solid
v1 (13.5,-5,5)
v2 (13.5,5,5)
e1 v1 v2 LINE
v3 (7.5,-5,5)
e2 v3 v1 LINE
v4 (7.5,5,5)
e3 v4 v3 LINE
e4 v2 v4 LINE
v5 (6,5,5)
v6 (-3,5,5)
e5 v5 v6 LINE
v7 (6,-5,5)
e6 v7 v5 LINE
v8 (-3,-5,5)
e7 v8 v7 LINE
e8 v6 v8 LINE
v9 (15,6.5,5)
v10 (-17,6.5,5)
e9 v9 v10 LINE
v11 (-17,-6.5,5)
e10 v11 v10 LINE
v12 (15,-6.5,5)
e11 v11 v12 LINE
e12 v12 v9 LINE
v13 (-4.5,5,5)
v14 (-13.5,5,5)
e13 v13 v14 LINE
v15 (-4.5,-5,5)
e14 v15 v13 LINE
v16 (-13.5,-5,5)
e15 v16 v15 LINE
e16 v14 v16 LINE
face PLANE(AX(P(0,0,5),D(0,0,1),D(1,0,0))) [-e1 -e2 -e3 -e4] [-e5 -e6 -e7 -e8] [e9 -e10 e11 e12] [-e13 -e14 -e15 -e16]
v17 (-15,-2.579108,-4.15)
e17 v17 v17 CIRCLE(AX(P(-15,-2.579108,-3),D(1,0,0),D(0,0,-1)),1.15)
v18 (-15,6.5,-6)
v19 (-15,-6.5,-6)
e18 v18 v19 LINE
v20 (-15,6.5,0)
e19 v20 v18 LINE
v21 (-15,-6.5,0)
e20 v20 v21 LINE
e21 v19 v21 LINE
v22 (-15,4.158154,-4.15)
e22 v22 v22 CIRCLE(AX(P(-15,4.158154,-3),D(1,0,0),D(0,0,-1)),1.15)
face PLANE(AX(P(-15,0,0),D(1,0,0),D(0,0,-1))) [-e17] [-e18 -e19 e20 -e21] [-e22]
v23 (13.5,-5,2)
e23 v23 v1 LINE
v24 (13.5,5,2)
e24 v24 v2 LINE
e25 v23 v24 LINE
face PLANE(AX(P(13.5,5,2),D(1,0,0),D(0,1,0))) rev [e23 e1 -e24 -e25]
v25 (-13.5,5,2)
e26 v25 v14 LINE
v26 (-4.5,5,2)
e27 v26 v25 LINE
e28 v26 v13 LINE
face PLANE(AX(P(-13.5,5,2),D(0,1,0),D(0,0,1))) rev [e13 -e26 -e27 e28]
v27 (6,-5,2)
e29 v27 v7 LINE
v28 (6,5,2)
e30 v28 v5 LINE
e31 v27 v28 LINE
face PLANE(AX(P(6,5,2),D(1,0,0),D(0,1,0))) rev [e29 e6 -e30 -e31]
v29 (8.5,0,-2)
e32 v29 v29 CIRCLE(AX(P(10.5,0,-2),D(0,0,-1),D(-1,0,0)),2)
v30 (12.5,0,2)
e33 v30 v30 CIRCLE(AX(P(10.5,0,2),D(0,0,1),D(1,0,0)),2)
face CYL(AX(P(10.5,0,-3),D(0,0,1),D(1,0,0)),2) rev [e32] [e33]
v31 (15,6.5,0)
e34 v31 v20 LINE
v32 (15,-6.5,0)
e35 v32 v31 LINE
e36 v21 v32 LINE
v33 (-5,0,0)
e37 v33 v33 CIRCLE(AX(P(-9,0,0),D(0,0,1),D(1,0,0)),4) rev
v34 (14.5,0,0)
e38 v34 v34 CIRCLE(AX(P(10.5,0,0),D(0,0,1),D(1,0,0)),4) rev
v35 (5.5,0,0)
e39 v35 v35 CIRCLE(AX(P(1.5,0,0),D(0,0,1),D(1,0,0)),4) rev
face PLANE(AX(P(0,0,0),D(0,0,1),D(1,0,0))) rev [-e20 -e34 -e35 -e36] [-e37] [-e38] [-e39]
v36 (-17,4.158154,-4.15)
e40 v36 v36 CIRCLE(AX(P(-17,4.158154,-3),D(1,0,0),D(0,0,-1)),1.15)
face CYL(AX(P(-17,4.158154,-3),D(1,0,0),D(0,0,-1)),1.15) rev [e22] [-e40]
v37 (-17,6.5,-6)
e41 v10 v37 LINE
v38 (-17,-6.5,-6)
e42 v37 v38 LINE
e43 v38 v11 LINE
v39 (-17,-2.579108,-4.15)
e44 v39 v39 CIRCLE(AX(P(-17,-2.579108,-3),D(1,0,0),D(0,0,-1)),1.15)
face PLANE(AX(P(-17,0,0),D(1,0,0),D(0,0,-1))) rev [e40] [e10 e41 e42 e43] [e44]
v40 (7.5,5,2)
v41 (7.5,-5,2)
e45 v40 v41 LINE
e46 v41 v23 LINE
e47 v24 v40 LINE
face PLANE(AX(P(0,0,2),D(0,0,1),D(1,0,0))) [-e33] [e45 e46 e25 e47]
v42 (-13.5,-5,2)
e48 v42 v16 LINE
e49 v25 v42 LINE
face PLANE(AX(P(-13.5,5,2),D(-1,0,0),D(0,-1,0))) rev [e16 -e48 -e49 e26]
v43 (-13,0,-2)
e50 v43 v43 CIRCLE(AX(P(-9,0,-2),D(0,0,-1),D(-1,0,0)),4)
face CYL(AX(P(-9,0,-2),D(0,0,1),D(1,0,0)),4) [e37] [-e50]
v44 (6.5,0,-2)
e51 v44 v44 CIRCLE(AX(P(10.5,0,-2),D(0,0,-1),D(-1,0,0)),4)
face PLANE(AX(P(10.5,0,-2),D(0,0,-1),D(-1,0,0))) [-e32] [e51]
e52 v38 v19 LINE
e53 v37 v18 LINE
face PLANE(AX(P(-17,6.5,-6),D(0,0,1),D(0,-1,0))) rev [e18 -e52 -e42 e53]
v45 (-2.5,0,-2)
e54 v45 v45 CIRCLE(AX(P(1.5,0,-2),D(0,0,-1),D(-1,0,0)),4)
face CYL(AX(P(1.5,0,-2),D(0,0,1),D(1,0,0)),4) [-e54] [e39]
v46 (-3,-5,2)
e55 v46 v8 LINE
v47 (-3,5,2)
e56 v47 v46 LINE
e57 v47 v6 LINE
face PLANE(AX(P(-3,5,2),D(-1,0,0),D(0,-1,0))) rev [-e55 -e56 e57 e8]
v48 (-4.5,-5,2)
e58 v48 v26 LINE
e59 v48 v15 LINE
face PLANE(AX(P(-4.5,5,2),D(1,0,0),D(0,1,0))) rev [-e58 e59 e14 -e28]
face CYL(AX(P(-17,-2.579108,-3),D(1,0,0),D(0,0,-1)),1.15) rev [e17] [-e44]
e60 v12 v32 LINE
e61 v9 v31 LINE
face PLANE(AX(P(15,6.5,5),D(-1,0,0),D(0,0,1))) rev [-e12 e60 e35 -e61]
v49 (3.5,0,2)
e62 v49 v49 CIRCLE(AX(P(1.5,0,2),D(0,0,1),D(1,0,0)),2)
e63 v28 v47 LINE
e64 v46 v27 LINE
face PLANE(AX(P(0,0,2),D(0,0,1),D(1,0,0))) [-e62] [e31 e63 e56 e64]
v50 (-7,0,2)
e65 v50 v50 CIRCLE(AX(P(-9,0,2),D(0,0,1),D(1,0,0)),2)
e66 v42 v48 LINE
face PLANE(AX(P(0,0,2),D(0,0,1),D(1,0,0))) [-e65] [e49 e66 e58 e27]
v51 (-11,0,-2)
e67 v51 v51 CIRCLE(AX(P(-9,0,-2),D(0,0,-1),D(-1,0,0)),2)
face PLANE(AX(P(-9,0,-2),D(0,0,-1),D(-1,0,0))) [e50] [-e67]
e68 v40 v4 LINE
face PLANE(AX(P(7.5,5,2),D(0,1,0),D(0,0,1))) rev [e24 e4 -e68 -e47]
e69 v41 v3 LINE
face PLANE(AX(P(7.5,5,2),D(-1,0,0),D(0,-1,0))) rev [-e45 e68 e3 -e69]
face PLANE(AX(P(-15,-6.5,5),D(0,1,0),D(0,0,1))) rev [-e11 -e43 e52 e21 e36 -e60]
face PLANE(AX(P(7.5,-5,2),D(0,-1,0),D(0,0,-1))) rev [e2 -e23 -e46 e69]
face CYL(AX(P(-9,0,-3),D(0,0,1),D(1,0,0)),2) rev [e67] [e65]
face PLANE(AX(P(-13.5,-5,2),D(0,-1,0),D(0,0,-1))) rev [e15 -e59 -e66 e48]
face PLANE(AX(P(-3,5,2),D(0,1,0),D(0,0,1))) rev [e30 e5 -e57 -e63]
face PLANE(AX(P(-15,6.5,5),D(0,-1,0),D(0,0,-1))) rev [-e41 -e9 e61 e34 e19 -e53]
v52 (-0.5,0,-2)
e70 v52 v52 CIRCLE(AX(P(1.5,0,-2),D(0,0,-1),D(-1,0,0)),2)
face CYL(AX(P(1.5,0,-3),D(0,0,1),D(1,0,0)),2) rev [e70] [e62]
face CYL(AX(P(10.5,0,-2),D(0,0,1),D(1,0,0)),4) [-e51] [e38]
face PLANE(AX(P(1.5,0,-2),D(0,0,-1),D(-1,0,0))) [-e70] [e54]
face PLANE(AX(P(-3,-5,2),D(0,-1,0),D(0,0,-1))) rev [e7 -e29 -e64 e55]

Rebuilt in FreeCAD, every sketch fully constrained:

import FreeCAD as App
import Part
import Sketcher
from FreeCAD import Vector
Q = App.Units.Quantity


def add_polygon(sketch, points):
    """Adds a closed chain of lines whose ends are joined by coincident constraints."""
    first, n = sketch.GeometryCount, len(points)
    for a, b in zip(points, points[1:] + points[:1]):
        sketch.addGeometry(Part.LineSegment(App.Vector(*a, 0), App.Vector(*b, 0)), False)
    for i in range(n):
        sketch.addConstraint(Sketcher.Constraint("Coincident", first + i, 2, first + (i + 1) % n, 1))

doc = App.newDocument("Part")
params = doc.addObject("Spreadsheet::Sheet", "Params")
for row, (alias, value) in enumerate([
    ("sketch1_width", "30 mm"),
    ("sketch1_height", "13 mm"),
    ("pad1_length", "5 mm"),
    ("sketch2_width", "9 mm"),
    ("sketch2_width2", "6 mm"),
    ("sketch2_height", "10 mm"),
    ("pocket1_length", "3 mm"),
    ("sketch3_diameter", "4 mm"),
    ("pocket2_length", "5 mm"),
    ("sketch4_width", "13 mm"),
    ("sketch4_height", "11 mm"),
    ("pad2_length", "2 mm"),
    ("sketch5_diameter", "2.3 mm"),
    ("pocket3_length", "2 mm"),
    ("sketch6_diameter", "8 mm"),
    ("sketch6_diameter2", "4 mm"),
    ("pad3_length", "2 mm"),
], start=1):
    params.set(f"A{row}", alias)
    params.set(f"B{row}", "=" + value)
    params.setAlias(f"B{row}", alias)

body = doc.addObject("PartDesign::Body", "Body")

# Sketch on XY plane
sketch1 = doc.addObject("Sketcher::SketchObject", "Sketch")
body.addObject(sketch1)
sketch1.AttachmentSupport = (doc.XY_Plane, [""])
sketch1.MapMode = "FlatFace"
add_polygon(sketch1, [(-15, 6), (-15, -6), (15, -6), (15, 6)])  # lines 0-3
sketch1.addConstraint([
    Sketcher.Constraint("Vertical", 0),
    Sketcher.Constraint("Horizontal", 1),
    Sketcher.Constraint("Vertical", 2),
    Sketcher.Constraint("Horizontal", 3),
    Sketcher.Constraint("Symmetric", 0, 2, 2, 2, -1, 1),
    Sketcher.Constraint("DistanceX", 1, 1, 1, 2, Q("30 mm")),
    Sketcher.Constraint("DistanceY", 0, 2, 0, 1, Q("13 mm")),
])
sketch1.setExpression("Constraints[9]", "Params.sketch1_width")
sketch1.setExpression("Constraints[10]", "Params.sketch1_height")
pad1 = doc.addObject("PartDesign::Pad", "Pad")
body.addObject(pad1)
pad1.Profile = sketch1
pad1.setExpression("Length", "Params.pad1_length")

# Sketch on XY plane
sketch2 = doc.addObject("Sketcher::SketchObject", "Sketch001")
body.addObject(sketch2)
sketch2.AttachmentSupport = (doc.XY_Plane, [""])
sketch2.MapMode = "FlatFace"
sketch2.AttachmentOffset = App.Placement(Vector(0, 0, 5), App.Rotation())
add_polygon(sketch2, [(-14, 5), (-14, -5), (-4, -5), (-4, 5)])  # lines 0-3
add_polygon(sketch2, [(-3, 5), (-3, -5), (6, -5), (6, 5)])  # lines 4-7
add_polygon(sketch2, [(8, 5), (8, -5), (14, -5), (14, 5)])  # lines 8-11
sketch2.addConstraint([
    Sketcher.Constraint("Vertical", 0),
    Sketcher.Constraint("Horizontal", 1),
    Sketcher.Constraint("Vertical", 2),
    Sketcher.Constraint("Horizontal", 3),
    Sketcher.Constraint("Vertical", 4),
    Sketcher.Constraint("Horizontal", 5),
    Sketcher.Constraint("Vertical", 6),
    Sketcher.Constraint("Horizontal", 7),
    Sketcher.Constraint("Vertical", 8),
    Sketcher.Constraint("Horizontal", 9),
    Sketcher.Constraint("Vertical", 10),
    Sketcher.Constraint("Horizontal", 11),
    Sketcher.Constraint("Symmetric", 3, 2, 9, 2, -1, 1),
    Sketcher.Constraint("Horizontal", 1, 2, 4, 2),
    Sketcher.Constraint("Horizontal", 3, 2, 6, 2),
    Sketcher.Constraint("Horizontal", 5, 2, 8, 2),
    Sketcher.Constraint("Horizontal", 7, 2, 10, 2),
    Sketcher.Constraint("Equal", 3, 5),
    Sketcher.Constraint("DistanceX", 1, 1, 1, 2, Q("9 mm")),
    Sketcher.Constraint("DistanceX", 9, 1, 9, 2, Q("6 mm")),
    Sketcher.Constraint("DistanceY", 0, 2, 0, 1, Q("10 mm")),
    Sketcher.Constraint("DistanceX", 4, 2, -1, 1, Q("3 mm")),
    Sketcher.Constraint("DistanceX", 1, 2, 8, 2, Q("12 mm")),
])
sketch2.setExpression("Constraints[30]", "Params.sketch2_width")
sketch2.setExpression("Constraints[31]", "Params.sketch2_width2")
sketch2.setExpression("Constraints[32]", "Params.sketch2_height")
pocket1 = doc.addObject("PartDesign::Pocket", "Pocket")
body.addObject(pocket1)
pocket1.Profile = sketch2
pocket1.setExpression("Length", "Params.pocket1_length")

# Sketch on XY plane
sketch3 = doc.addObject("Sketcher::SketchObject", "Sketch002")
body.addObject(sketch3)
sketch3.AttachmentSupport = (doc.XY_Plane, [""])
sketch3.MapMode = "FlatFace"
sketch3.AttachmentOffset = App.Placement(Vector(0, 0, 2), App.Rotation())
sketch3.addGeometry([
    Part.Circle(Vector(-9, 0, 0), Vector(0, 0, 1), 2),
    Part.Circle(Vector(1.5, 0, 0), Vector(0, 0, 1), 2),
    Part.Circle(Vector(10.5, 0, 0), Vector(0, 0, 1), 2),
], False)
sketch3.addConstraint([
    Sketcher.Constraint("Equal", 0, 1),
    Sketcher.Constraint("Equal", 1, 2),
    Sketcher.Constraint("PointOnObject", 0, 3, -1),
    Sketcher.Constraint("PointOnObject", 1, 3, -1),
    Sketcher.Constraint("PointOnObject", 2, 3, -1),
    Sketcher.Constraint("Diameter", 0, Q("4 mm")),
    Sketcher.Constraint("DistanceX", 0, 3, -1, 1, Q("9 mm")),
    Sketcher.Constraint("DistanceX", 1, 3, 2, 3, Q("9 mm")),
    Sketcher.Constraint("DistanceX", -1, 1, 1, 3, Q("1.5 mm")),
])
sketch3.setExpression("Constraints[5]", "Params.sketch3_diameter")
pocket2 = doc.addObject("PartDesign::Pocket", "Pocket001")
body.addObject(pocket2)
pocket2.Profile = sketch3
pocket2.setExpression("Length", "Params.pocket2_length")

# Sketch on YZ plane
sketch4 = doc.addObject("Sketcher::SketchObject", "Sketch003")
body.addObject(sketch4)
sketch4.AttachmentSupport = (doc.YZ_Plane, [""])
sketch4.MapMode = "FlatFace"
sketch4.AttachmentOffset = App.Placement(Vector(0, 0, -15), App.Rotation())
add_polygon(sketch4, [(6, -6), (-6, -6), (-6, 5), (6, 5)])  # lines 0-3
sketch4.addConstraint([
    Sketcher.Constraint("Horizontal", 0),
    Sketcher.Constraint("Vertical", 1),
    Sketcher.Constraint("Horizontal", 2),
    Sketcher.Constraint("Vertical", 3),
    Sketcher.Constraint("DistanceX", 0, 2, 0, 1, Q("13 mm")),
    Sketcher.Constraint("DistanceY", 1, 1, 1, 2, Q("11 mm")),
    Sketcher.Constraint("DistanceY", 0, 2, -1, 1, Q("6 mm")),
    Sketcher.Constraint("DistanceX", 0, 2, -1, 1, Q("6.5 mm")),
])
sketch4.setExpression("Constraints[8]", "Params.sketch4_width")
sketch4.setExpression("Constraints[9]", "Params.sketch4_height")
pad2 = doc.addObject("PartDesign::Pad", "Pad001")
body.addObject(pad2)
pad2.Profile = sketch4
pad2.setExpression("Length", "Params.pad2_length")
pad2.Reversed = True

# Sketch on YZ plane
sketch5 = doc.addObject("Sketcher::SketchObject", "Sketch004")
body.addObject(sketch5)
sketch5.AttachmentSupport = (doc.YZ_Plane, [""])
sketch5.MapMode = "FlatFace"
sketch5.AttachmentOffset = App.Placement(Vector(0, 0, -15), App.Rotation())
sketch5.addGeometry([
    Part.Circle(Vector(4.2, -3, 0), Vector(0, 0, 1), 1.1),
    Part.Circle(Vector(-2.6, -3, 0), Vector(0, 0, 1), 1.1),
], False)
sketch5.addConstraint([
    Sketcher.Constraint("Equal", 0, 1),
    Sketcher.Constraint("Horizontal", 0, 3, 1, 3),
    Sketcher.Constraint("Diameter", 0, Q("2.3 mm")),
    Sketcher.Constraint("DistanceY", 0, 3, -1, 1, Q("3 mm")),
    Sketcher.Constraint("DistanceX", 1, 3, -1, 1, Q("2.579108 mm")),
    Sketcher.Constraint("DistanceX", 1, 3, 0, 3, Q("6.737262 mm")),
])
sketch5.setExpression("Constraints[2]", "Params.sketch5_diameter")
pocket3 = doc.addObject("PartDesign::Pocket", "Pocket002")
body.addObject(pocket3)
pocket3.Profile = sketch5
pocket3.setExpression("Length", "Params.pocket3_length")

# Sketch on XY plane
sketch6 = doc.addObject("Sketcher::SketchObject", "Sketch005")
body.addObject(sketch6)
sketch6.AttachmentSupport = (doc.XY_Plane, [""])
sketch6.MapMode = "FlatFace"
sketch6.addGeometry([
    Part.Circle(Vector(10.5, 0, 0), Vector(0, 0, 1), 4),  # 0
    Part.Circle(Vector(10.5, 0, 0), Vector(0, 0, 1), 2),  # 1
    Part.Circle(Vector(1.5, 0, 0), Vector(0, 0, 1), 4),  # 2
    Part.Circle(Vector(1.5, 0, 0), Vector(0, 0, 1), 2),  # 3
    Part.Circle(Vector(-9, 0, 0), Vector(0, 0, 1), 4),  # 4
    Part.Circle(Vector(-9, 0, 0), Vector(0, 0, 1), 2),  # 5
], False)
sketch6.addConstraint([
    Sketcher.Constraint("Coincident", 1, 3, 0, 3),
    Sketcher.Constraint("Coincident", 3, 3, 2, 3),
    Sketcher.Constraint("Coincident", 5, 3, 4, 3),
    Sketcher.Constraint("Equal", 0, 2),
    Sketcher.Constraint("Equal", 1, 3),
    Sketcher.Constraint("Equal", 2, 4),
    Sketcher.Constraint("Equal", 3, 5),
    Sketcher.Constraint("PointOnObject", 0, 3, -1),
    Sketcher.Constraint("PointOnObject", 2, 3, -1),
    Sketcher.Constraint("PointOnObject", 4, 3, -1),
    Sketcher.Constraint("Diameter", 0, Q("8 mm")),
    Sketcher.Constraint("Diameter", 1, Q("4 mm")),
    Sketcher.Constraint("DistanceX", 4, 3, -1, 1, Q("9 mm")),
    Sketcher.Constraint("DistanceX", 2, 3, 0, 3, Q("9 mm")),
    Sketcher.Constraint("DistanceX", -1, 1, 0, 3, Q("10.5 mm")),
])
sketch6.setExpression("Constraints[10]", "Params.sketch6_diameter")
sketch6.setExpression("Constraints[11]", "Params.sketch6_diameter2")
pad3 = doc.addObject("PartDesign::Pad", "Pad002")
body.addObject(pad3)
pad3.Profile = sketch6
pad3.setExpression("Length", "Params.pad3_length")
pad3.Reversed = True

doc.recompute()
